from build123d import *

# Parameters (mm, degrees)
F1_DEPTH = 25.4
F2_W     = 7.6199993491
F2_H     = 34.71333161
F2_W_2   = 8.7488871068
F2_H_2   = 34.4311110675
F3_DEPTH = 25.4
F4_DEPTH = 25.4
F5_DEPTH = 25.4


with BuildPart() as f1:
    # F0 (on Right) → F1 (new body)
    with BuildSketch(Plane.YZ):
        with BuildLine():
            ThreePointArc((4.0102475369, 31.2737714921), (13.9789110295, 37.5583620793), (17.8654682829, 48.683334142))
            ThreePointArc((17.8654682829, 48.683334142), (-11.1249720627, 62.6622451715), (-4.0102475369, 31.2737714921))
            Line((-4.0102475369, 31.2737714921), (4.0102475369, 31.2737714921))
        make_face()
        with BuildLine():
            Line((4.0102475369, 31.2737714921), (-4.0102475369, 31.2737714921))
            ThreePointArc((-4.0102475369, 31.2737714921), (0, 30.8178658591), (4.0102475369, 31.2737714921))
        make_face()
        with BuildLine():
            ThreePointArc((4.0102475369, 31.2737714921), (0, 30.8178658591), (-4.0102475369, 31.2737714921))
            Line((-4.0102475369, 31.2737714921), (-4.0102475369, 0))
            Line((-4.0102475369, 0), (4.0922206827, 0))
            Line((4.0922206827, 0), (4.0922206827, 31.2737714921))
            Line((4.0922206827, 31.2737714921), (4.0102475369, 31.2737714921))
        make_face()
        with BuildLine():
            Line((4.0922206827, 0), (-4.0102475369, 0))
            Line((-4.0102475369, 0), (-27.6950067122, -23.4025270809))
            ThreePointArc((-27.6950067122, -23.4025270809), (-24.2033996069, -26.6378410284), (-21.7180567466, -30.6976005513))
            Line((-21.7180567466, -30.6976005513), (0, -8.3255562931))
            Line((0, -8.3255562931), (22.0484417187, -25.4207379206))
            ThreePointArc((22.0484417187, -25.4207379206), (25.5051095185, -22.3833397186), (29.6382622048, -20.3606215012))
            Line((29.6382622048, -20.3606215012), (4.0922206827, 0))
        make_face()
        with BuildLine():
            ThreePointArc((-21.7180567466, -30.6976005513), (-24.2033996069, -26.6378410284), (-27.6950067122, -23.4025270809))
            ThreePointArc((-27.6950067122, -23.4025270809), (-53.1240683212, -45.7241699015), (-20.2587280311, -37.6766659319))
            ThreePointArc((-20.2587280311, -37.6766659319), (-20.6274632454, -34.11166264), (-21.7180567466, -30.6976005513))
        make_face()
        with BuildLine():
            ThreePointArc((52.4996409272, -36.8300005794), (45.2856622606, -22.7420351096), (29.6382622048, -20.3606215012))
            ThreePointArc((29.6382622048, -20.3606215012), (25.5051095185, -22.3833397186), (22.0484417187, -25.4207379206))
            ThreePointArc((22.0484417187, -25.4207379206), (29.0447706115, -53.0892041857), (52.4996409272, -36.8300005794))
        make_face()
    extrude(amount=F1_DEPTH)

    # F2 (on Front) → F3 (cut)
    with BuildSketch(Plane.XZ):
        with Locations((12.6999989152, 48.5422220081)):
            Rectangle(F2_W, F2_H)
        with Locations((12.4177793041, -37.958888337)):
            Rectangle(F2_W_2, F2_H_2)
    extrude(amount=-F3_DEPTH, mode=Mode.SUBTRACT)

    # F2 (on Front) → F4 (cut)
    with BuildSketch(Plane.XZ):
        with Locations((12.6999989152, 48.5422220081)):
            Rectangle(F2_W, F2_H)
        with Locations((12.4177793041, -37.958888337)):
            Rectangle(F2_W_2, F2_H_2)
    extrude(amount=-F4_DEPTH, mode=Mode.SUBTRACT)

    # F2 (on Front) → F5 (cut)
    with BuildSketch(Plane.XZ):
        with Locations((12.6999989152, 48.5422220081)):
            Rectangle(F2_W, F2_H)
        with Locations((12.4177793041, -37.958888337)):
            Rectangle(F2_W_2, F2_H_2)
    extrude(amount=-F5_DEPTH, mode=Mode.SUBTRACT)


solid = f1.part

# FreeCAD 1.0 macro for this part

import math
import FreeCAD as App
import Part
import Sketcher
from FreeCAD import Vector
Q = App.Units.Quantity


def add_polygon(sketch, points):
    """Adds a closed chain of lines whose ends are joined by coincident constraints."""
    first, n = sketch.GeometryCount, len(points)
    for a, b in zip(points, points[1:] + points[:1]):
        sketch.addGeometry(Part.LineSegment(App.Vector(*a, 0), App.Vector(*b, 0)), False)
    for i in range(n):
        sketch.addConstraint(Sketcher.Constraint("Coincident", first + i, 2, first + (i + 1) % n, 1))

doc = App.newDocument("Part")
body = doc.addObject("PartDesign::Body", "Body")

# Sketch on YZ plane
sketch1 = doc.addObject("Sketcher::SketchObject", "Sketch")
body.addObject(sketch1)
sketch1.AttachmentSupport = (doc.YZ_Plane, [""])
sketch1.MapMode = "FlatFace"
sketch1.addGeometry(Part.ArcOfCircle(Part.Circle(Vector(0, 48.68, 0), Vector(0, 0, 1), 17.87), math.radians(-77), math.radians(0)), False)
sketch1.addGeometry(Part.ArcOfCircle(Part.Circle(Vector(0, 48.68, 0), Vector(0, 0, 1), 17.87), math.radians(0), math.radians(257)), False)
sketch1.addGeometry(Part.LineSegment(Vector(-4.01, 31.27, 0), Vector(-4.01, 0, 0)), False)
sketch1.addGeometry(Part.LineSegment(Vector(-4.01, 0, 0), Vector(-27.7, -23.4, 0)), False)
sketch1.addGeometry(Part.ArcOfCircle(Part.Circle(Vector(-37.68, -37.68, 0), Vector(0, 0, 1), 17.42), math.radians(55), math.radians(360)), False)
sketch1.addGeometry(Part.ArcOfCircle(Part.Circle(Vector(-37.68, -37.68, 0), Vector(0, 0, 1), 17.42), math.radians(0), math.radians(24)), False)
sketch1.addGeometry(Part.LineSegment(Vector(-21.72, -30.7, 0), Vector(0, -8.33, 0)), False)
sketch1.addGeometry(Part.LineSegment(Vector(0, -8.33, 0), Vector(22.05, -25.42, 0)), False)
sketch1.addGeometry(Part.ArcOfCircle(Part.Circle(Vector(35.14, -36.83, 0), Vector(0, 0, 1), 17.36), math.radians(139), math.radians(468)), False)
sketch1.addGeometry(Part.LineSegment(Vector(29.64, -20.36, 0), Vector(4.09, 0, 0)), False)
sketch1.addGeometry(Part.LineSegment(Vector(4.09, 0, 0), Vector(4.09, 31.27, 0)), False)
sketch1.addGeometry(Part.LineSegment(Vector(4.09, 31.27, 0), Vector(4.01, 31.27, 0)), False)
sketch1.addConstraint(Sketcher.Constraint("Tangent", 0, 2, 1, 1))
sketch1.addConstraint(Sketcher.Constraint("Coincident", 1, 2, 2, 1))
sketch1.addConstraint(Sketcher.Constraint("Coincident", 2, 2, 3, 1))
sketch1.addConstraint(Sketcher.Constraint("Coincident", 3, 2, 4, 1))
sketch1.addConstraint(Sketcher.Constraint("Tangent", 4, 2, 5, 1))
sketch1.addConstraint(Sketcher.Constraint("Coincident", 5, 2, 6, 1))
sketch1.addConstraint(Sketcher.Constraint("Coincident", 6, 2, 7, 1))
sketch1.addConstraint(Sketcher.Constraint("Coincident", 7, 2, 8, 1))
sketch1.addConstraint(Sketcher.Constraint("Coincident", 8, 2, 9, 1))
sketch1.addConstraint(Sketcher.Constraint("Coincident", 9, 2, 10, 1))
sketch1.addConstraint(Sketcher.Constraint("Coincident", 10, 2, 11, 1))
sketch1.addConstraint(Sketcher.Constraint("Coincident", 11, 2, 0, 1))
sketch1.addConstraint(Sketcher.Constraint("Vertical", 2))
sketch1.addConstraint(Sketcher.Constraint("Vertical", 10))
sketch1.addConstraint(Sketcher.Constraint("Horizontal", 11))
sketch1.addConstraint(Sketcher.Constraint("Equal", 0, 1))
sketch1.addConstraint(Sketcher.Constraint("Equal", 4, 5))
sketch1.addConstraint(Sketcher.Constraint("Symmetric", 1, 2, 11, 2, -2))
sketch1.addConstraint(Sketcher.Constraint("PointOnObject", 2, 2, -1))
sketch1.addConstraint(Sketcher.Constraint("PointOnObject", 6, 2, -2))
sketch1.addConstraint(Sketcher.Constraint("PointOnObject", 9, 2, -1))
sketch1.addConstraint(Sketcher.Constraint("Horizontal", 1, 3, 0, 2))
sketch1.addConstraint(Sketcher.Constraint("Horizontal", 5, 3, 4, 2))
sketch1.addConstraint(Sketcher.Constraint("DistanceY", 4, 3, 0, 3, Q("3.4 in")))
sketch1.addConstraint(Sketcher.Constraint("DistanceY", 8, 3, -1, 1, Q("1.45 in")))
sketch1.addConstraint(Sketcher.Constraint("Radius", 0, 17.865468))
sketch1.addConstraint(Sketcher.Constraint("Radius", 4, 17.417938))
sketch1.addConstraint(Sketcher.Constraint("Radius", 8, 17.362975))
sketch1.addConstraint(Sketcher.Constraint("DistanceY", 2, 2, 2, 1, 31.273771))
sketch1.addConstraint(Sketcher.Constraint("DistanceY", 5, 2, -1, 1, 30.697601))
sketch1.addConstraint(Sketcher.Constraint("DistanceY", 3, 2, 1, 2, 54.676299))
sketch1.addConstraint(Sketcher.Constraint("DistanceX", 5, 2, 7, 2, 43.766498))
sketch1.addConstraint(Sketcher.Constraint("Distance", 6, 31.179839))
sketch1.addConstraint(Sketcher.Constraint("Distance", 9, 32.667341))
sketch1.addConstraint(Sketcher.Constraint("DistanceX", 11, 2, 11, 1, 0.081973))
sketch1.addConstraint(Sketcher.Constraint("DistanceX", 4, 2, -1, 1, 20.258728))
sketch1.addConstraint(Sketcher.Constraint("DistanceX", -1, 1, 7, 2, 22.048442))
sketch1.addConstraint(Sketcher.Constraint("DistanceY", 8, 2, -1, 1, 20.360622))
pad1 = doc.addObject("PartDesign::Pad", "Pad")
body.addObject(pad1)
pad1.Profile = sketch1
pad1.Length = Q("1 in")

# Sketch on XZ plane
sketch2 = doc.addObject("Sketcher::SketchObject", "Sketch001")
body.addObject(sketch2)
sketch2.AttachmentSupport = (doc.XZ_Plane, [""])
sketch2.MapMode = "FlatFace"
add_polygon(sketch2, [(9, 66), (9, 31), (17, 31), (17, 66)])  # lines 0-3
add_polygon(sketch2, [(8, -21), (8, -55), (17, -55), (17, -21)])  # lines 4-7
sketch2.addConstraint(Sketcher.Constraint("Vertical", 0))
sketch2.addConstraint(Sketcher.Constraint("Horizontal", 1))
sketch2.addConstraint(Sketcher.Constraint("Vertical", 2))
sketch2.addConstraint(Sketcher.Constraint("Horizontal", 3))
sketch2.addConstraint(Sketcher.Constraint("Vertical", 4))
sketch2.addConstraint(Sketcher.Constraint("Horizontal", 5))
sketch2.addConstraint(Sketcher.Constraint("Vertical", 6))
sketch2.addConstraint(Sketcher.Constraint("Horizontal", 7))
sketch2.addConstraint(Sketcher.Constraint("DistanceX", 1, 1, 1, 2, Q("0.3 in")))
sketch2.addConstraint(Sketcher.Constraint("DistanceY", 4, 2, 0, 2, Q("3.4 in")))
sketch2.addConstraint(Sketcher.Constraint("DistanceX", -1, 1, 0, 2, Q("0.35 in")))
sketch2.addConstraint(Sketcher.Constraint("DistanceY", 0, 2, 0, 1, 34.713332))
sketch2.addConstraint(Sketcher.Constraint("DistanceY", 4, 2, 4, 1, 34.431111))
sketch2.addConstraint(Sketcher.Constraint("DistanceX", 5, 1, 5, 2, 8.748887))
sketch2.addConstraint(Sketcher.Constraint("DistanceY", -1, 1, 0, 2, 31.185556))
sketch2.addConstraint(Sketcher.Constraint("DistanceX", -1, 1, 4, 2, 8.043336))
pocket1 = doc.addObject("PartDesign::Pocket", "Pocket")
body.addObject(pocket1)
pocket1.Profile = sketch2
pocket1.Length = Q("1 in")

# Sketch on XZ plane
sketch3 = doc.addObject("Sketcher::SketchObject", "Sketch002")
body.addObject(sketch3)
sketch3.AttachmentSupport = (doc.XZ_Plane, [""])
sketch3.MapMode = "FlatFace"
add_polygon(sketch3, [(9, 66), (9, 31), (17, 31), (17, 66)])  # lines 0-3
add_polygon(sketch3, [(8, -21), (8, -55), (17, -55), (17, -21)])  # lines 4-7
sketch3.addConstraint(Sketcher.Constraint("Vertical", 0))
sketch3.addConstraint(Sketcher.Constraint("Horizontal", 1))
sketch3.addConstraint(Sketcher.Constraint("Vertical", 2))
sketch3.addConstraint(Sketcher.Constraint("Horizontal", 3))
sketch3.addConstraint(Sketcher.Constraint("Vertical", 4))
sketch3.addConstraint(Sketcher.Constraint("Horizontal", 5))
sketch3.addConstraint(Sketcher.Constraint("Vertical", 6))
sketch3.addConstraint(Sketcher.Constraint("Horizontal", 7))
sketch3.addConstraint(Sketcher.Constraint("DistanceX", 1, 1, 1, 2, Q("0.3 in")))
sketch3.addConstraint(Sketcher.Constraint("DistanceY", 4, 2, 0, 2, Q("3.4 in")))
sketch3.addConstraint(Sketcher.Constraint("DistanceX", -1, 1, 0, 2, Q("0.35 in")))
sketch3.addConstraint(Sketcher.Constraint("DistanceY", 0, 2, 0, 1, 34.713332))
sketch3.addConstraint(Sketcher.Constraint("DistanceY", 4, 2, 4, 1, 34.431111))
sketch3.addConstraint(Sketcher.Constraint("DistanceX", 5, 1, 5, 2, 8.748887))
sketch3.addConstraint(Sketcher.Constraint("DistanceY", -1, 1, 0, 2, 31.185556))
sketch3.addConstraint(Sketcher.Constraint("DistanceX", -1, 1, 4, 2, 8.043336))
pocket2 = doc.addObject("PartDesign::Pocket", "Pocket001")
body.addObject(pocket2)
pocket2.Profile = sketch3
pocket2.Length = Q("1 in")

# Sketch on XZ plane
sketch4 = doc.addObject("Sketcher::SketchObject", "Sketch003")
body.addObject(sketch4)
sketch4.AttachmentSupport = (doc.XZ_Plane, [""])
sketch4.MapMode = "FlatFace"
add_polygon(sketch4, [(9, 66), (9, 31), (17, 31), (17, 66)])  # lines 0-3
add_polygon(sketch4, [(8, -21), (8, -55), (17, -55), (17, -21)])  # lines 4-7
sketch4.addConstraint(Sketcher.Constraint("Vertical", 0))
sketch4.addConstraint(Sketcher.Constraint("Horizontal", 1))
sketch4.addConstraint(Sketcher.Constraint("Vertical", 2))
sketch4.addConstraint(Sketcher.Constraint("Horizontal", 3))
sketch4.addConstraint(Sketcher.Constraint("Vertical", 4))
sketch4.addConstraint(Sketcher.Constraint("Horizontal", 5))
sketch4.addConstraint(Sketcher.Constraint("Vertical", 6))
sketch4.addConstraint(Sketcher.Constraint("Horizontal", 7))
sketch4.addConstraint(Sketcher.Constraint("DistanceX", 1, 1, 1, 2, Q("0.3 in")))
sketch4.addConstraint(Sketcher.Constraint("DistanceY", 4, 2, 0, 2, Q("3.4 in")))
sketch4.addConstraint(Sketcher.Constraint("DistanceX", -1, 1, 0, 2, Q("0.35 in")))
sketch4.addConstraint(Sketcher.Constraint("DistanceY", 0, 2, 0, 1, 34.713332))
sketch4.addConstraint(Sketcher.Constraint("DistanceY", 4, 2, 4, 1, 34.431111))
sketch4.addConstraint(Sketcher.Constraint("DistanceX", 5, 1, 5, 2, 8.748887))
sketch4.addConstraint(Sketcher.Constraint("DistanceY", -1, 1, 0, 2, 31.185556))
sketch4.addConstraint(Sketcher.Constraint("DistanceX", -1, 1, 4, 2, 8.043336))
pocket3 = doc.addObject("PartDesign::Pocket", "Pocket002")
body.addObject(pocket3)
pocket3.Profile = sketch4
pocket3.Length = Q("1 in")

doc.recompute()
